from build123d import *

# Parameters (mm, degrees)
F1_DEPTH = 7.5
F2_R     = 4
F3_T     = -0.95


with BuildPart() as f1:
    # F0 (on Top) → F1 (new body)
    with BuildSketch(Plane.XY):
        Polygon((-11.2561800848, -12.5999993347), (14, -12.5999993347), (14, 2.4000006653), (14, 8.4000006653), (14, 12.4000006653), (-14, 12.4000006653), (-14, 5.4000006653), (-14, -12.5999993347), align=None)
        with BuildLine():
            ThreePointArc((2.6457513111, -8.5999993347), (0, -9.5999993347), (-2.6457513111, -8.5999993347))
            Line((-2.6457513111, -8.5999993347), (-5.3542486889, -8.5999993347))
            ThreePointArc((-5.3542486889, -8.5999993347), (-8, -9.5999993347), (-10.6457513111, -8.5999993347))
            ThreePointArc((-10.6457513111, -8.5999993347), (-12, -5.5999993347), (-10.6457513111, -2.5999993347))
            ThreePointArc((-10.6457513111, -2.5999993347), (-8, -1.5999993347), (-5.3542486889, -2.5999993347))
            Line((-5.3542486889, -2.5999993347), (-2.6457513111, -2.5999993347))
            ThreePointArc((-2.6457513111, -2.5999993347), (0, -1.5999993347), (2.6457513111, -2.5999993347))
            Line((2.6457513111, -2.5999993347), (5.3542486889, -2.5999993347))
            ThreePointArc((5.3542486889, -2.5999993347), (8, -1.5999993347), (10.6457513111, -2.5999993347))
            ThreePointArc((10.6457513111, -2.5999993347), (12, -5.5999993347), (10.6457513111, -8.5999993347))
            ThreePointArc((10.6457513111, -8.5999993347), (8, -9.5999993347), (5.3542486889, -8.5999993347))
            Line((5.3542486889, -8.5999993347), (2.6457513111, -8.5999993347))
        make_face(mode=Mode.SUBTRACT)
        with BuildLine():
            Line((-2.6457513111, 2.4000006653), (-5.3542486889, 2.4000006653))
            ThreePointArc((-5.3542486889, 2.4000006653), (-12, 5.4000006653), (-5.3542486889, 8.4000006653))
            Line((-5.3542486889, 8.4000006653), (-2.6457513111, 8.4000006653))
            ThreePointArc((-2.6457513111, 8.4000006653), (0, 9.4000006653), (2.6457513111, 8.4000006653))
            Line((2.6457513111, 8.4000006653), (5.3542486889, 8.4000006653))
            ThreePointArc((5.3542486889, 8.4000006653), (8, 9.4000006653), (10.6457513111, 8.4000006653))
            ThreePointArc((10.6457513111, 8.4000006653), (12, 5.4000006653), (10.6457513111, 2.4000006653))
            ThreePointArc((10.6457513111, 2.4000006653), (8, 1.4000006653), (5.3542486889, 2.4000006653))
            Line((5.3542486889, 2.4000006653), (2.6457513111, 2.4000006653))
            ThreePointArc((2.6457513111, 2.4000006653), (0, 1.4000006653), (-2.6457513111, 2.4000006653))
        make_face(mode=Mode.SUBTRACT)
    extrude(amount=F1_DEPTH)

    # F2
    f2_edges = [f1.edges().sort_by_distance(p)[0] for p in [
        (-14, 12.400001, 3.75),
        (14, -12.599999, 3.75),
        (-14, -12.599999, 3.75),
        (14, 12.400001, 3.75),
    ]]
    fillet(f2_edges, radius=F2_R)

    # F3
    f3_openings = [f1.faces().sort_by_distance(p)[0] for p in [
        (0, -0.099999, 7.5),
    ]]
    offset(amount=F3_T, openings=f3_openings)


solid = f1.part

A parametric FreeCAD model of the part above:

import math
import FreeCAD as App
import Part
import Sketcher

V = App.Vector
Q = App.Units.Quantity


def edges_at(feature, points):
    """Names of the edges that pass closest to the given points."""
    edges = feature.Shape.Edges
    near = lambda p: min(range(len(edges)), key=lambda i: edges[i].distToShape(Part.Vertex(*p))[0])
    return sorted({f"Edge{near(p) + 1}" for p in points})


def faces_at(feature, points):
    """Names of the faces that lie closest to the given points."""
    faces = feature.Shape.Faces
    near = lambda p: min(range(len(faces)), key=lambda i: faces[i].distToShape(Part.Vertex(*p))[0])
    return sorted({f"Face{near(p) + 1}" for p in points})

doc = App.newDocument("Part")
body = doc.addObject("PartDesign::Body", "Body")

# Sketch on XY plane
sketch1 = body.newObject("Sketcher::SketchObject", "Sketch")
sketch1.AttachmentSupport = (doc.getObject("XY_Plane"), [""])
sketch1.MapMode = "FlatFace"
sketch1.addGeometry([
    Part.LineSegment(V(14, -12.599999, 0), V(14, 12.400001, 0)),  # 0
    Part.LineSegment(V(14, 12.400001, 0), V(-14, 12.400001, 0)),  # 1
    Part.LineSegment(V(-14, 12.400001, 0), V(-14, -12.599999, 0)),  # 2
    Part.LineSegment(V(-14, -12.599999, 0), V(14, -12.599999, 0)),  # 3
    Part.LineSegment(V(5.354249, -8.599999, 0), V(2.645751, -8.599999, 0)),  # 4
    Part.ArcOfCircle(Part.Circle(V(0, -5.599999, 0), V(0, 0, 1), 4), math.radians(-131.409622), math.radians(-48.590378)),  # 5
    Part.LineSegment(V(-2.645751, -8.599999, 0), V(-5.354249, -8.599999, 0)),  # 6
    Part.ArcOfCircle(Part.Circle(V(-8, -5.599999, 0), V(0, 0, 1), 4), math.radians(-131.409622), math.radians(-48.590378)),  # 7
    Part.ArcOfCircle(Part.Circle(V(-8, -5.599999, 0), V(0, 0, 1), 4), math.radians(131.409622), math.radians(228.590378)),  # 8
    Part.ArcOfCircle(Part.Circle(V(-8, -5.599999, 0), V(0, 0, 1), 4), math.radians(48.590378), math.radians(131.409622)),  # 9
    Part.LineSegment(V(-5.354249, -2.599999, 0), V(-2.645751, -2.599999, 0)),  # 10
    Part.ArcOfCircle(Part.Circle(V(0, -5.599999, 0), V(0, 0, 1), 4), math.radians(48.590378), math.radians(131.409622)),  # 11
    Part.LineSegment(V(2.645751, -2.599999, 0), V(5.354249, -2.599999, 0)),  # 12
    Part.ArcOfCircle(Part.Circle(V(8, -5.599999, 0), V(0, 0, 1), 4), math.radians(48.590378), math.radians(131.409622)),  # 13
    Part.ArcOfCircle(Part.Circle(V(8, -5.599999, 0), V(0, 0, 1), 4), math.radians(-48.590378), math.radians(48.590378)),  # 14
    Part.ArcOfCircle(Part.Circle(V(8, -5.599999, 0), V(0, 0, 1), 4), math.radians(-131.409622), math.radians(-48.590378)),  # 15
    Part.ArcOfCircle(Part.Circle(V(0, 5.400001, 0), V(0, 0, 1), 4), math.radians(-131.409622), math.radians(-48.590378)),  # 16
    Part.LineSegment(V(-2.645751, 2.400001, 0), V(-5.354249, 2.400001, 0)),  # 17
    Part.ArcOfCircle(Part.Circle(V(-8, 5.400001, 0), V(0, 0, 1), 4), math.radians(48.590378), math.radians(311.409622)),  # 18
    Part.LineSegment(V(-5.354249, 8.400001, 0), V(-2.645751, 8.400001, 0)),  # 19
    Part.ArcOfCircle(Part.Circle(V(0, 5.400001, 0), V(0, 0, 1), 4), math.radians(48.590378), math.radians(131.409622)),  # 20
    Part.LineSegment(V(2.645751, 8.400001, 0), V(5.354249, 8.400001, 0)),  # 21
    Part.ArcOfCircle(Part.Circle(V(8, 5.400001, 0), V(0, 0, 1), 4), math.radians(48.590378), math.radians(131.409622)),  # 22
    Part.ArcOfCircle(Part.Circle(V(8, 5.400001, 0), V(0, 0, 1), 4), math.radians(-48.590378), math.radians(48.590378)),  # 23
    Part.ArcOfCircle(Part.Circle(V(8, 5.400001, 0), V(0, 0, 1), 4), math.radians(-131.409622), math.radians(-48.590378)),  # 24
    Part.LineSegment(V(5.354249, 2.400001, 0), V(2.645751, 2.400001, 0)),  # 25
], False)
sketch1.addConstraint([
    Sketcher.Constraint("Coincident", 0, 2, 1, 1),
    Sketcher.Constraint("Coincident", 1, 2, 2, 1),
    Sketcher.Constraint("Coincident", 2, 2, 3, 1),
    Sketcher.Constraint("Coincident", 3, 2, 0, 1),
    Sketcher.Constraint("Coincident", 4, 2, 5, 2),
    Sketcher.Constraint("Coincident", 5, 1, 6, 1),
    Sketcher.Constraint("Coincident", 6, 2, 7, 2),
    Sketcher.Constraint("Tangent", 7, 1, 8, 2),
    Sketcher.Constraint("Tangent", 8, 1, 9, 2),
    Sketcher.Constraint("Coincident", 9, 1, 10, 1),
    Sketcher.Constraint("Coincident", 10, 2, 11, 2),
    Sketcher.Constraint("Coincident", 11, 1, 12, 1),
    Sketcher.Constraint("Coincident", 12, 2, 13, 2),
    Sketcher.Constraint("Tangent", 13, 1, 14, 2),
    Sketcher.Constraint("Tangent", 14, 1, 15, 2),
    Sketcher.Constraint("Coincident", 15, 1, 4, 1),
    Sketcher.Constraint("Coincident", 16, 1, 17, 1),
    Sketcher.Constraint("Coincident", 17, 2, 18, 2),
    Sketcher.Constraint("Coincident", 18, 1, 19, 1),
    Sketcher.Constraint("Coincident", 19, 2, 20, 2),
    Sketcher.Constraint("Coincident", 20, 1, 21, 1),
    Sketcher.Constraint("Coincident", 21, 2, 22, 2),
    Sketcher.Constraint("Tangent", 22, 1, 23, 2),
    Sketcher.Constraint("Tangent", 23, 1, 24, 2),
    Sketcher.Constraint("Coincident", 24, 1, 25, 1),
    Sketcher.Constraint("Coincident", 25, 2, 16, 2),
    Sketcher.Constraint("Vertical", 0),
    Sketcher.Constraint("Horizontal", 1),
    Sketcher.Constraint("Vertical", 2),
    Sketcher.Constraint("Horizontal", 3),
    Sketcher.Constraint("Horizontal", 4),
    Sketcher.Constraint("Horizontal", 6),
    Sketcher.Constraint("Horizontal", 10),
    Sketcher.Constraint("Horizontal", 12),
    Sketcher.Constraint("Horizontal", 17),
    Sketcher.Constraint("Horizontal", 19),
    Sketcher.Constraint("Horizontal", 21),
    Sketcher.Constraint("Horizontal", 25),
    Sketcher.Constraint("Coincident", 9, 3, 7, 3),
    Sketcher.Constraint("Coincident", 11, 3, 5, 3),
    Sketcher.Constraint("Coincident", 15, 3, 13, 3),
    Sketcher.Constraint("Coincident", 20, 3, 16, 3),
    Sketcher.Constraint("Coincident", 24, 3, 22, 3),
    Sketcher.Constraint("Equal", 5, 7),
    Sketcher.Constraint("Equal", 9, 11),
    Sketcher.Constraint("Equal", 11, 13),
    Sketcher.Constraint("Equal", 15, 16),
    Sketcher.Constraint("Equal", 16, 18),
    Sketcher.Constraint("Equal", 18, 20),
    Sketcher.Constraint("Equal", 20, 22),
    Sketcher.Constraint("Symmetric", 7, 3, 13, 3, -2),
    Sketcher.Constraint("Symmetric", 18, 3, 22, 3, -2),
    Sketcher.Constraint("Symmetric", 4, 2, 5, 1, -2),
    Sketcher.Constraint("Symmetric", 19, 2, 20, 1, -2),
    Sketcher.Constraint("Horizontal", 5, 3, 7, 3),
    Sketcher.Constraint("Horizontal", 16, 3, 18, 3),
    Sketcher.Constraint("Horizontal", 6, 2, 7, 1),
    Sketcher.Constraint("Horizontal", 8, 1, 9, 1),
    Sketcher.Constraint("Horizontal", 10, 2, 11, 1),
    Sketcher.Constraint("Horizontal", 12, 2, 13, 1),
    Sketcher.Constraint("Horizontal", 7, 1, 14, 1),
    Sketcher.Constraint("Horizontal", 21, 2, 22, 1),
    Sketcher.Constraint("Horizontal", 17, 2, 23, 1),
    Sketcher.Constraint("Horizontal", 23, 1, 24, 1),
    Sketcher.Constraint("Vertical", 9, 3, 18, 3),
    Sketcher.Constraint("Vertical", 7, 1, 8, 1),
    Sketcher.Constraint("Vertical", 10, 2, 16, 1),
    Sketcher.Constraint("Vertical", 17, 2, 18, 1),
    Sketcher.Constraint("Radius", 5, Q("4 mm")),
    Sketcher.Constraint("DistanceX", 1, 2, 1, 1, Q("28 mm")),
    Sketcher.Constraint("DistanceY", 0, 1, 0, 2, Q("25 mm")),
    Sketcher.Constraint("DistanceX", 7, 3, -1, 1, Q("8 mm")),
    Sketcher.Constraint("DistanceX", -1, 1, 0, 2, Q("14 mm")),
    Sketcher.Constraint("DistanceY", 5, 3, 16, 3, Q("11 mm")),
    Sketcher.Constraint("DistanceY", 22, 3, 0, 2, Q("7 mm")),
    Sketcher.Constraint("DistanceY", 4, 2, 5, 3, Q("3 mm")),
    Sketcher.Constraint("DistanceY", 5, 3, -1, 1, Q("5.599999 mm")),
])
pad1 = body.newObject("PartDesign::Pad", "Pad")
pad1.Profile = sketch1
pad1.Length = 7.5
doc.recompute()

fillet = body.newObject("PartDesign::Fillet", "Fillet")
fillet.Base = (pad1, edges_at(pad1, [
    (-14, 12.4, 3.75),
    (14, -12.6, 3.75),
    (-14, -12.6, 3.75),
    (14, 12.4, 3.75),
]))
fillet.Radius = 4
doc.recompute()

thickness = body.newObject("PartDesign::Thickness", "Thickness")
thickness.Base = (fillet, faces_at(fillet, [(0, -0.1, 7.5)]))
thickness.Value = 0.95
thickness.Reversed = True
thickness.Join = "Arc"

doc.recompute()
